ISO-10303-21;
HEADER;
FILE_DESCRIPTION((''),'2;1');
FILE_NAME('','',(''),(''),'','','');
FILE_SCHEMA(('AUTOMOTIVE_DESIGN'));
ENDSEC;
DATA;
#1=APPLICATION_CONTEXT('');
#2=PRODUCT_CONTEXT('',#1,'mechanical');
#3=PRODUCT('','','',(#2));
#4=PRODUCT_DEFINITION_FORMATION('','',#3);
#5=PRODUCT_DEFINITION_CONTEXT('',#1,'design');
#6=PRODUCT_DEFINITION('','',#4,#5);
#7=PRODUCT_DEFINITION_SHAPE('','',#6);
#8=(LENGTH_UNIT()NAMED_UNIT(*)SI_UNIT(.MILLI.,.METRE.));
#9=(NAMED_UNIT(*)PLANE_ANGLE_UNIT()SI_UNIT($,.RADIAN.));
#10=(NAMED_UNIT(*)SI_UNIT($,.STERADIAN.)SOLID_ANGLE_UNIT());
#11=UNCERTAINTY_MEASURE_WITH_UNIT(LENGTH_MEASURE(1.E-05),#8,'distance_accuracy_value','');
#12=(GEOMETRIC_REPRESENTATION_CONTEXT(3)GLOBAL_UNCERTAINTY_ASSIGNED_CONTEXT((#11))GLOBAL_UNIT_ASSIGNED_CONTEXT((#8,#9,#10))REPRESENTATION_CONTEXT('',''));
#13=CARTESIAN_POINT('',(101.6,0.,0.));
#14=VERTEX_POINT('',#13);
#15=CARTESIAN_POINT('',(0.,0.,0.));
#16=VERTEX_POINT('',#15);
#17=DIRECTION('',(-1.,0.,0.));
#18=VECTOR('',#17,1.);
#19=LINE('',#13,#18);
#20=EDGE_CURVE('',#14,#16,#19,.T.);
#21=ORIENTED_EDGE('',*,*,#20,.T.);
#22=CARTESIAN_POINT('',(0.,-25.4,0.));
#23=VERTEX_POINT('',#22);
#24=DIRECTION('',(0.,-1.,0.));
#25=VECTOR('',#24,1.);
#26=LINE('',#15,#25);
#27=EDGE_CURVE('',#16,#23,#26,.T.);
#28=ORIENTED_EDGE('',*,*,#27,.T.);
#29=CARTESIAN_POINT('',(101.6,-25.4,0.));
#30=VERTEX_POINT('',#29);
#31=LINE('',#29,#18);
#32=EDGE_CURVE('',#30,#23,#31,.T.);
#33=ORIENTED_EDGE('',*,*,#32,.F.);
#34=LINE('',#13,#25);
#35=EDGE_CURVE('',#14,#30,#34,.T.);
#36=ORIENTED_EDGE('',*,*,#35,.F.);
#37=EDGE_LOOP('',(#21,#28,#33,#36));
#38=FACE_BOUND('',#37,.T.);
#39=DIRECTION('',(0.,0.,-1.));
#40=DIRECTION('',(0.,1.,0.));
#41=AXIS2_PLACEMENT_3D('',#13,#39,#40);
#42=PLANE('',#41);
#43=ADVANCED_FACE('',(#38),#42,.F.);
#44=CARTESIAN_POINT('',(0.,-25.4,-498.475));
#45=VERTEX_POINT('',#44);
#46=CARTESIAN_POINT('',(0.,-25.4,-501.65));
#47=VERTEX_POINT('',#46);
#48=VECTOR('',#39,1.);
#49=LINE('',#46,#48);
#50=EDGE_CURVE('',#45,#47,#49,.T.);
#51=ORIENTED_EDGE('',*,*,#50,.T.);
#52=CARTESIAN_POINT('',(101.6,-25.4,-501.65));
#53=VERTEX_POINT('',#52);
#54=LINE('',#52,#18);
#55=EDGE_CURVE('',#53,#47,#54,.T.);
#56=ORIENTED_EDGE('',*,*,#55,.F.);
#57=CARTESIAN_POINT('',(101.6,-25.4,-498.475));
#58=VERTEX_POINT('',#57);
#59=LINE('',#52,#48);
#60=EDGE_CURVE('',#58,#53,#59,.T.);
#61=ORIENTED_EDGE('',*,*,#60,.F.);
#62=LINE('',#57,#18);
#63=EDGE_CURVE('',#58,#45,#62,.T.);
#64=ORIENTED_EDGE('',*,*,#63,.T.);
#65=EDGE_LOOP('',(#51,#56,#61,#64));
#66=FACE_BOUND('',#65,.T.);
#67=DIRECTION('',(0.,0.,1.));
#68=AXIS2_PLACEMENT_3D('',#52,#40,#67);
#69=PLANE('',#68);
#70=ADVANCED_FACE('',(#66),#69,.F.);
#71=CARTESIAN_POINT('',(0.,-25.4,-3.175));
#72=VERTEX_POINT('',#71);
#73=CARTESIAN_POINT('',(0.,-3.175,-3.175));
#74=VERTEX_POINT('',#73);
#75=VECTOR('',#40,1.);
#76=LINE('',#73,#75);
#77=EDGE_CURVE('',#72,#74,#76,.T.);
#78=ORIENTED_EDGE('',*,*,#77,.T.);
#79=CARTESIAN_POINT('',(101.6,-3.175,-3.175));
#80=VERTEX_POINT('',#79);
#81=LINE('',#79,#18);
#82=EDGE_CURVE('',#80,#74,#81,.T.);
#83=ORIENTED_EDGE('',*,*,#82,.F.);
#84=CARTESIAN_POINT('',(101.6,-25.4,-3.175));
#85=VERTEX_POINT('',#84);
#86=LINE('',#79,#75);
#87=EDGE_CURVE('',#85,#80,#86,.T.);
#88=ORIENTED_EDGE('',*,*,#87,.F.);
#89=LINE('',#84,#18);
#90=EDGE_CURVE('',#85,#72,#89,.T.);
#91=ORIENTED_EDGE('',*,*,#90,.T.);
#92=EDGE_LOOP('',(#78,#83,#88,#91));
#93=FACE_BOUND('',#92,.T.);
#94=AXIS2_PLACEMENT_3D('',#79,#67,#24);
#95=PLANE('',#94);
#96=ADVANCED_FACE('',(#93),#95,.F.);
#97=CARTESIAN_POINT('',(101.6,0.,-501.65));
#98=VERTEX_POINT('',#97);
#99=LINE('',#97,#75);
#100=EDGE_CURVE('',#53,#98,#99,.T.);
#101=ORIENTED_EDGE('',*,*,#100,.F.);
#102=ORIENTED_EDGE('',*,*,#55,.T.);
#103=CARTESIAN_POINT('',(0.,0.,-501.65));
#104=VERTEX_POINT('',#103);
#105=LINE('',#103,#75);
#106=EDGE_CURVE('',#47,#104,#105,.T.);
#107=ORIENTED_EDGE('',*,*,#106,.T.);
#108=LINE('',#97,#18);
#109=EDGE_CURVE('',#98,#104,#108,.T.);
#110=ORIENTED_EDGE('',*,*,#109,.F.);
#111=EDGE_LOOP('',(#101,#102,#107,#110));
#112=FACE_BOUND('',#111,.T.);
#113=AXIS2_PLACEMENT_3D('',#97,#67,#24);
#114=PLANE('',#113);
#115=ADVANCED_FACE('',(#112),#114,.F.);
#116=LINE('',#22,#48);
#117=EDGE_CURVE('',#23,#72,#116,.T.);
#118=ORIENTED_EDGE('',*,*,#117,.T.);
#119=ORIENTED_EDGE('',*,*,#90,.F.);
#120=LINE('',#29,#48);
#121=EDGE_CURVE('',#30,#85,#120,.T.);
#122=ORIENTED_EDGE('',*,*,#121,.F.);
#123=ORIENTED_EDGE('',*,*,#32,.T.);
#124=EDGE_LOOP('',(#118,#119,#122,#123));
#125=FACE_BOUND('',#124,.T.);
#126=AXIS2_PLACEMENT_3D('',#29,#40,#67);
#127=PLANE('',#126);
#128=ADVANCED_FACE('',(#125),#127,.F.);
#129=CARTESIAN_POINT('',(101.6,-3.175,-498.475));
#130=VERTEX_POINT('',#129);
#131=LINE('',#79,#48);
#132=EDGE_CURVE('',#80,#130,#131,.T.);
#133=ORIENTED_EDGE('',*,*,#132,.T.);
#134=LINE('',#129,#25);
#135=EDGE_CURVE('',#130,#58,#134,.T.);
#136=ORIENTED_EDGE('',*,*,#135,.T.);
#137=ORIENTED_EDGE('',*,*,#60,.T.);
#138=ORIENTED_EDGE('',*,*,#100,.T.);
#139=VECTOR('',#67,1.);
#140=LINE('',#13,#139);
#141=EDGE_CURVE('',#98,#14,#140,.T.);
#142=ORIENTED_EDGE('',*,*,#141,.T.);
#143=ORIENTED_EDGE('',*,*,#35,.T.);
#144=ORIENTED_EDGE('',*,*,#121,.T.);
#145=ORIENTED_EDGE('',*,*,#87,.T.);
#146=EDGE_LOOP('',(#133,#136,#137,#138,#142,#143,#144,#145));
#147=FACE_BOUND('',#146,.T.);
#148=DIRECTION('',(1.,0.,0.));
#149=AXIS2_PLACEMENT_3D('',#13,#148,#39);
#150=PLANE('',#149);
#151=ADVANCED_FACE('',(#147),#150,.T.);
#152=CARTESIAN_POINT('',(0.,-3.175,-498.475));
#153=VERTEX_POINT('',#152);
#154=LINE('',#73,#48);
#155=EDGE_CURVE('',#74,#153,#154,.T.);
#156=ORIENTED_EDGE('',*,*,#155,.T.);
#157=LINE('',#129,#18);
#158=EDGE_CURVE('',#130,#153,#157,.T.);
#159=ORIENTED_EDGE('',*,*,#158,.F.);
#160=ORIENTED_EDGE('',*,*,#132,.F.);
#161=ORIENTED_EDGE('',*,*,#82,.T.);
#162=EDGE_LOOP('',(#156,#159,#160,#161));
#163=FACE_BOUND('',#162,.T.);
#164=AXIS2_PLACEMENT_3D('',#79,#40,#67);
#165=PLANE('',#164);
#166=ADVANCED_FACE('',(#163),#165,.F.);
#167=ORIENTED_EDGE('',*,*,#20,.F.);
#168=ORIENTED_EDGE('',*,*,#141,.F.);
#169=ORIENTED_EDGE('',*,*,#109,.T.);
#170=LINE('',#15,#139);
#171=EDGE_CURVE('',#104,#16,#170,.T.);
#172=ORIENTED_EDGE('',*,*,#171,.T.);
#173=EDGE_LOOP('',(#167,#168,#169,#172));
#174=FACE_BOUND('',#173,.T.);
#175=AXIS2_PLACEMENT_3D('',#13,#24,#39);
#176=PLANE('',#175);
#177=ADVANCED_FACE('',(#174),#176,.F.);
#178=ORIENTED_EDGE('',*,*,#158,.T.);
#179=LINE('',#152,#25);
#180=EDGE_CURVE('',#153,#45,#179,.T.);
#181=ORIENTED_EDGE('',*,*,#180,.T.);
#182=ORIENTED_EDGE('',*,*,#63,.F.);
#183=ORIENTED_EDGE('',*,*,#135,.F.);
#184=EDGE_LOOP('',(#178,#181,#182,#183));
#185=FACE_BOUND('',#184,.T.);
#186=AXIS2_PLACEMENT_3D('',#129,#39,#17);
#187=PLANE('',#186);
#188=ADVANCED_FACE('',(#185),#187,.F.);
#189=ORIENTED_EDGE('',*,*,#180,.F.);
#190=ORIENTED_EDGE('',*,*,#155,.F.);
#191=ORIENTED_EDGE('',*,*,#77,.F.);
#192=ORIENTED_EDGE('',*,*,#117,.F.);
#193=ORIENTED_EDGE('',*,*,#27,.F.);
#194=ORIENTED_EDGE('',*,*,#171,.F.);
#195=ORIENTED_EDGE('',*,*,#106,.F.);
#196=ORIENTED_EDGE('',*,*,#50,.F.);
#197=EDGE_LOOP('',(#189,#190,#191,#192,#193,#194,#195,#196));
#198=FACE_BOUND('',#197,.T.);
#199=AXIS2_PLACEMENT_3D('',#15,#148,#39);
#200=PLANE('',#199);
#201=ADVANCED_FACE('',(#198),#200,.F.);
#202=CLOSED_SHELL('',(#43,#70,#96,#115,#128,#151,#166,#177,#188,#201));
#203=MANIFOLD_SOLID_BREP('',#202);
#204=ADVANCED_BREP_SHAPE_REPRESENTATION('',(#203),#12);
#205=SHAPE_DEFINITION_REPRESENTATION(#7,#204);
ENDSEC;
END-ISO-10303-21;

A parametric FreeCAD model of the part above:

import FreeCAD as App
import Part
import Sketcher
Q = App.Units.Quantity


def add_polygon(sketch, points):
    """Adds a closed chain of lines whose ends are joined by coincident constraints."""
    first, n = sketch.GeometryCount, len(points)
    for a, b in zip(points, points[1:] + points[:1]):
        sketch.addGeometry(Part.LineSegment(App.Vector(*a, 0), App.Vector(*b, 0)), False)
    for i in range(n):
        sketch.addConstraint(Sketcher.Constraint("Coincident", first + i, 2, first + (i + 1) % n, 1))

doc = App.newDocument("Part")
params = doc.addObject("Spreadsheet::Sheet", "Params")
for row, (alias, value) in enumerate([
    ("sketch1_width", "1 in"),
    ("sketch1_height", "19.5 in"),
    ("sketch1_height2", "19.75 in"),
    ("sketch1_width2", "0.875 in"),
    ("pad1_length", "4 in"),
], start=1):
    params.set(f"A{row}", alias)
    params.set(f"B{row}", "=" + value)
    params.setAlias(f"B{row}", alias)

body = doc.addObject("PartDesign::Body", "Body")

# Sketch on YZ plane
sketch1 = body.newObject("Sketcher::SketchObject", "Sketch")
sketch1.AttachmentSupport = (doc.getObject("YZ_Plane"), [""])
sketch1.MapMode = "FlatFace"
add_polygon(sketch1, [(0, -501.6), (0, 0), (-25.4, 0), (-25.4, -3.2), (-3.2, -3.2), (-3.2, -498.5), (-25.4, -498.5), (-25.4, -501.6)])  # lines 0-7
sketch1.addConstraint([
    Sketcher.Constraint("Vertical", 0),
    Sketcher.Constraint("Horizontal", 1),
    Sketcher.Constraint("Vertical", 2),
    Sketcher.Constraint("Horizontal", 3),
    Sketcher.Constraint("Vertical", 4),
    Sketcher.Constraint("Horizontal", 5),
    Sketcher.Constraint("Vertical", 6),
    Sketcher.Constraint("Horizontal", 7),
    Sketcher.Constraint("Coincident", 0, 2, -1, 1),
    Sketcher.Constraint("Vertical", 2, 2, 5, 2),
    Sketcher.Constraint("Equal", 2, 6),
    Sketcher.Constraint("DistanceX", 1, 2, 1, 1, Q("1 in")),
    Sketcher.Constraint("DistanceY", 4, 2, 4, 1, Q("19.5 in")),
    Sketcher.Constraint("DistanceY", 0, 1, 0, 2, Q("19.75 in")),
    Sketcher.Constraint("DistanceX", 3, 1, 3, 2, Q("0.875 in")),
])
sketch1.setExpression("Constraints[19]", "Params.sketch1_width")
sketch1.setExpression("Constraints[20]", "Params.sketch1_height")
sketch1.setExpression("Constraints[21]", "Params.sketch1_height2")
sketch1.setExpression("Constraints[22]", "Params.sketch1_width2")
pad1 = body.newObject("PartDesign::Pad", "Pad")
pad1.Profile = sketch1
pad1.setExpression("Length", "Params.pad1_length")

doc.recompute()
